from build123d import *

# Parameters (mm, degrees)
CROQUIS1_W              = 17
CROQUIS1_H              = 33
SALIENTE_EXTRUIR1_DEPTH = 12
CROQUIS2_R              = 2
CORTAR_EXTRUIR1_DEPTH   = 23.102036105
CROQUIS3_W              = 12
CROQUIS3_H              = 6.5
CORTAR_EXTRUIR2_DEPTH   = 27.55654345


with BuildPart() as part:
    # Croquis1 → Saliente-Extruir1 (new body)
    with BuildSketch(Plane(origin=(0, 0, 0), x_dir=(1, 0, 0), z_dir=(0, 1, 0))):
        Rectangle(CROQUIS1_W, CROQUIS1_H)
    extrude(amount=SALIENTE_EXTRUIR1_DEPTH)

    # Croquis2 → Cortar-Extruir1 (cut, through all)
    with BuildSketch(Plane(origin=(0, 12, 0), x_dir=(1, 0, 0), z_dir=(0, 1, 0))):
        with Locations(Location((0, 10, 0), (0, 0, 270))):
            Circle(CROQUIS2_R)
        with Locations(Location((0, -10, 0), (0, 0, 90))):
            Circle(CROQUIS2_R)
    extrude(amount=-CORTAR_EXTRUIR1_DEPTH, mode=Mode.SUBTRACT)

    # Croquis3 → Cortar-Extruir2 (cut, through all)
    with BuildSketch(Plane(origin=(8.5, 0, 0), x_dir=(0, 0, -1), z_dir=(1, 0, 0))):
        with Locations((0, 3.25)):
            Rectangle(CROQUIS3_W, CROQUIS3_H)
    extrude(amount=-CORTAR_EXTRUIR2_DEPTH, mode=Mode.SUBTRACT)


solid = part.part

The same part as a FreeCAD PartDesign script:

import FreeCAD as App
import Part
import Sketcher

V = App.Vector


def add_polygon(sketch, points):
    """Adds a closed chain of lines whose ends are joined by coincident constraints."""
    first, n = sketch.GeometryCount, len(points)
    for a, b in zip(points, points[1:] + points[:1]):
        sketch.addGeometry(Part.LineSegment(App.Vector(*a, 0), App.Vector(*b, 0)), False)
    for i in range(n):
        sketch.addConstraint(Sketcher.Constraint("Coincident", first + i, 2, first + (i + 1) % n, 1))

doc = App.newDocument("Part")
body = doc.addObject("PartDesign::Body", "Body")

sketch1 = doc.addObject("Sketcher::SketchObject", "Sketch")
body.addObject(sketch1)
sketch1.AttachmentSupport = (doc.XZ_Plane, [""])
sketch1.MapMode = "FlatFace"
add_polygon(sketch1, [(-8, -16), (-8, 16), (8, 16), (8, -16)])
sketch1.addConstraint([
    Sketcher.Constraint("Vertical", 0),
    Sketcher.Constraint("Horizontal", 1),
    Sketcher.Constraint("Vertical", 2),
    Sketcher.Constraint("Horizontal", 3),
    Sketcher.Constraint("Symmetric", 0, 2, 2, 2, -1, 1),
    Sketcher.Constraint("DistanceX", 1, 1, 1, 2, 17.0),
    Sketcher.Constraint("DistanceY", 0, 1, 0, 2, 33.0),
])
pad1 = doc.addObject("PartDesign::Pad", "Pad")
body.addObject(pad1)
pad1.Profile = sketch1
pad1.Length = 12
pad1.Reversed = True

sketch2 = doc.addObject("Sketcher::SketchObject", "Sketch001")
body.addObject(sketch2)
sketch2.AttachmentSupport = (doc.XZ_Plane, [""])
sketch2.MapMode = "FlatFace"
sketch2.AttachmentOffset = App.Placement(V(0, 0, -12), App.Rotation())
sketch2.addGeometry([
    Part.Circle(V(0, -10, 0), V(0, 0, 1), 2),
    Part.Circle(V(0, 10, 0), V(0, 0, 1), 2),
], False)
sketch2.addConstraint([
    Sketcher.Constraint("Equal", 0, 1),
    Sketcher.Constraint("Symmetric", 0, 3, 1, 3, -1, 1),
    Sketcher.Constraint("PointOnObject", 0, 3, -2),
    Sketcher.Constraint("Diameter", 0, 4.0),
    Sketcher.Constraint("DistanceY", 0, 3, -1, 1, 10.0),
])
pocket1 = doc.addObject("PartDesign::Pocket", "Pocket")
body.addObject(pocket1)
pocket1.Profile = sketch2
pocket1.Type = "ThroughAll"
pocket1.Reversed = True

sketch3 = doc.addObject("Sketcher::SketchObject", "Sketch002")
body.addObject(sketch3)
sketch3.AttachmentSupport = (doc.YZ_Plane, [""])
sketch3.MapMode = "FlatFace"
sketch3.AttachmentOffset = App.Placement(V(0, 0, 8.5), App.Rotation())
add_polygon(sketch3, [(6, 6), (0, 6), (0, -6), (6, -6)])
sketch3.addConstraint([
    Sketcher.Constraint("Horizontal", 0),
    Sketcher.Constraint("Vertical", 1),
    Sketcher.Constraint("Horizontal", 2),
    Sketcher.Constraint("Vertical", 3),
    Sketcher.Constraint("Symmetric", 0, 2, 1, 2, -1, 1),
    Sketcher.Constraint("DistanceY", 1, 2, 1, 1, 12.0),
    Sketcher.Constraint("DistanceX", 0, 2, 0, 1, 6.5),
])
pocket2 = doc.addObject("PartDesign::Pocket", "Pocket001")
body.addObject(pocket2)
pocket2.Profile = sketch3
pocket2.Type = "ThroughAll"

doc.recompute()
